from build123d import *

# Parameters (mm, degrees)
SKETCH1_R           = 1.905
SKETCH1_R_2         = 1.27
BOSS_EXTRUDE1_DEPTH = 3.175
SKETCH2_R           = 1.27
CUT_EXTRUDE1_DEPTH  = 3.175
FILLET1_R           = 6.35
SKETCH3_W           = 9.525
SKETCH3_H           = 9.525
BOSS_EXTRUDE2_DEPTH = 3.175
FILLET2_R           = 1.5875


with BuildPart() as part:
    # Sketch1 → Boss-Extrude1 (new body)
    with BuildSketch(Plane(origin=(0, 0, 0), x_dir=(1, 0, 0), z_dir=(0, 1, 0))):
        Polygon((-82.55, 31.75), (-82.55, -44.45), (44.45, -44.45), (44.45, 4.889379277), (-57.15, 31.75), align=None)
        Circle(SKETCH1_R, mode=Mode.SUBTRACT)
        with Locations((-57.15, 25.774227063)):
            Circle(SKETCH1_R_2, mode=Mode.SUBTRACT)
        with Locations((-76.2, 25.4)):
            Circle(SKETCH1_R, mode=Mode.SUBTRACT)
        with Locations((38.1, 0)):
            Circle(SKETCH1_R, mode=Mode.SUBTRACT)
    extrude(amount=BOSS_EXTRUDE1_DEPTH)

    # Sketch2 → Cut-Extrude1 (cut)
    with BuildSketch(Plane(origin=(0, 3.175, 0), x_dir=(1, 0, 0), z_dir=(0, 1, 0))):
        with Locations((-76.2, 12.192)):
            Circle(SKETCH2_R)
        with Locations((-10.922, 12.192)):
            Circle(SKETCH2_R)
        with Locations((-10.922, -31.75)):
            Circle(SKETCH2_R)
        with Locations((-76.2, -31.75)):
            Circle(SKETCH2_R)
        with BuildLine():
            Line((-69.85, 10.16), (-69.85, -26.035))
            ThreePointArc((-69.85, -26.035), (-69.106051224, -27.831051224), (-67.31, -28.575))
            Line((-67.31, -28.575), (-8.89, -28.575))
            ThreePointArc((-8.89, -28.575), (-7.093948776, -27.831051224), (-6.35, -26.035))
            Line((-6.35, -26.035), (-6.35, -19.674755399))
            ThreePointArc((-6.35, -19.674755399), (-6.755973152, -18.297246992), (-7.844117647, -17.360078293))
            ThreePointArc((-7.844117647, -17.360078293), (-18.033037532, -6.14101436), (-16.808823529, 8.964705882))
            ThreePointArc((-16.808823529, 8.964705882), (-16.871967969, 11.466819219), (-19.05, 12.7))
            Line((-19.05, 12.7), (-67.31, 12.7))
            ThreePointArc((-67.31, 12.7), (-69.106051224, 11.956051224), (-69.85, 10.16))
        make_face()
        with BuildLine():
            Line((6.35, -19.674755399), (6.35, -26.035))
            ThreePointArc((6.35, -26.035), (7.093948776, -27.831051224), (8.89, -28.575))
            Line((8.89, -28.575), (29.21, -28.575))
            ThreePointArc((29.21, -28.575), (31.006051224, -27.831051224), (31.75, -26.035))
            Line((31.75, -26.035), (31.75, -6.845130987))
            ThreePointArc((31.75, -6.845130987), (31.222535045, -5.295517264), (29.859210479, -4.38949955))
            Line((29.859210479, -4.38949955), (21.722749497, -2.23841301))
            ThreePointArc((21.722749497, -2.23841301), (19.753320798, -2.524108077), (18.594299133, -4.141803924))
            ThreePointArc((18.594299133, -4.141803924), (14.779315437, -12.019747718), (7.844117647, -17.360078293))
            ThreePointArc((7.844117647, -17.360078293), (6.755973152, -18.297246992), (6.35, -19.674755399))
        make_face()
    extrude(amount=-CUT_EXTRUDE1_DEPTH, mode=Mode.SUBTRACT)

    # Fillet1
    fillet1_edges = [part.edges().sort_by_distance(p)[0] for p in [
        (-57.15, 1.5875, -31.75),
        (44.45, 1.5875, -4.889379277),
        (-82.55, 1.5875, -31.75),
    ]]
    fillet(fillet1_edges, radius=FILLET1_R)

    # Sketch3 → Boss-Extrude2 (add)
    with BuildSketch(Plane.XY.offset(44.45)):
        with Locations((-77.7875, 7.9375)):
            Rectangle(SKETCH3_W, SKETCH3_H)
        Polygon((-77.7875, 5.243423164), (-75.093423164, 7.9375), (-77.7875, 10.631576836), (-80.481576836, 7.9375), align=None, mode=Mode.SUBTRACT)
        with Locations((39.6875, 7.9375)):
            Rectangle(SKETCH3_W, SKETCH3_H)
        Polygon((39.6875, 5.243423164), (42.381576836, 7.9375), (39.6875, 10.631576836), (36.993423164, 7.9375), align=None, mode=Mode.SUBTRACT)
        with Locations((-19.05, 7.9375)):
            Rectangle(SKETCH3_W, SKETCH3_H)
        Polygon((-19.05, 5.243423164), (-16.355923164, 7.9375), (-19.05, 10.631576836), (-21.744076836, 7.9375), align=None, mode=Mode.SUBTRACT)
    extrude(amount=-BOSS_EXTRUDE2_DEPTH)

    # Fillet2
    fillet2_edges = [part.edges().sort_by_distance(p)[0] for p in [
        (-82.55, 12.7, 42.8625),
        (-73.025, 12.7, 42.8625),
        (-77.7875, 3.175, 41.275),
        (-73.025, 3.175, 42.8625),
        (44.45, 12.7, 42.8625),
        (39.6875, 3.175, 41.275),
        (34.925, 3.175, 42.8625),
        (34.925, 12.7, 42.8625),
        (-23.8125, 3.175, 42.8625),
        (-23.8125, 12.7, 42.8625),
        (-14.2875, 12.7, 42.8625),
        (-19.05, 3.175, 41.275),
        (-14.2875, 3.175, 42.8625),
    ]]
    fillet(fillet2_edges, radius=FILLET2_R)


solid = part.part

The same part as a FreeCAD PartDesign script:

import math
import FreeCAD as App
import Part
import Sketcher

V = App.Vector
Q = App.Units.Quantity


def edges_at(feature, points):
    """Names of the edges that pass closest to the given points."""
    edges = feature.Shape.Edges
    near = lambda p: min(range(len(edges)), key=lambda i: edges[i].distToShape(Part.Vertex(*p))[0])
    return sorted({f"Edge{near(p) + 1}" for p in points})


def add_polygon(sketch, points):
    """Adds a closed chain of lines whose ends are joined by coincident constraints."""
    first, n = sketch.GeometryCount, len(points)
    for a, b in zip(points, points[1:] + points[:1]):
        sketch.addGeometry(Part.LineSegment(App.Vector(*a, 0), App.Vector(*b, 0)), False)
    for i in range(n):
        sketch.addConstraint(Sketcher.Constraint("Coincident", first + i, 2, first + (i + 1) % n, 1))

doc = App.newDocument("Part")
params = doc.addObject("Spreadsheet::Sheet", "Params")
for row, (alias, value) in enumerate([
    ("sketch1_diameter", "0.1 in"),
    ("sketch1_diameter2", "0.15 in"),
    ("sketch1_width", "5 in"),
    ("sketch1_width2", "1 in"),
    ("sketch1_height", "3 in"),
    ("pad1_length", "0.125 in"),
    ("sketch2_diameter", "0.1 in"),
    ("sketch2_radius", "0.1 in"),
    ("sketch2_radius2", "0.75 in"),
    ("sketch2_width", "2.3 in"),
    ("sketch2_width2", "1.9 in"),
    ("pocket1_length", "0.125 in"),
    ("fillet_radius", "0.25 in"),
    ("sketch3_length", "0.15 in"),
    ("sketch3_width", "0.375 in"),
    ("pad2_length", "0.125 in"),
    ("fillet2_radius", "0.0625 in"),
], start=1):
    params.set(f"A{row}", alias)
    params.set(f"B{row}", "=" + value)
    params.setAlias(f"B{row}", alias)

body = doc.addObject("PartDesign::Body", "Body")

# Sketch on XZ plane
sketch1 = body.newObject("Sketcher::SketchObject", "Sketch")
sketch1.AttachmentSupport = (doc.getObject("XZ_Plane"), [""])
sketch1.MapMode = "FlatFace"
add_polygon(sketch1, [(-82.5, -31.8), (-82.5, 44.5), (44.5, 44.5), (44.5, -4.9), (-57.1, -31.8)])  # lines 0-4
sketch1.addGeometry(Part.Circle(V(0, 0, 0), V(0, 0, 1), 1.9), False)  # 5
sketch1.addGeometry(Part.Circle(V(38.1, 0, 0), V(0, 0, 1), 1.9), False)  # 6
sketch1.addGeometry(Part.Circle(V(-76.2, -25.4, 0), V(0, 0, 1), 1.9), False)  # 7
sketch1.addGeometry(Part.Circle(V(-57.1, -25.8, 0), V(0, 0, 1), 1.3), False)  # 8
sketch1.addConstraint([
    Sketcher.Constraint("Vertical", 0),
    Sketcher.Constraint("Horizontal", 1),
    Sketcher.Constraint("Vertical", 2),
    Sketcher.Constraint("Horizontal", 4),
    Sketcher.Constraint("Coincident", 5, 3, -1, 1),
    Sketcher.Constraint("Equal", 5, 6),
    Sketcher.Constraint("Equal", 6, 7),
    Sketcher.Constraint("PointOnObject", 6, 3, -1),
    Sketcher.Constraint("Vertical", 8, 3, 3, 2),
    Sketcher.Constraint("Diameter", 8, Q("0.1 in")),
    Sketcher.Constraint("Diameter", 5, Q("0.15 in")),
    Sketcher.Constraint("DistanceX", 1, 1, 1, 2, Q("5 in")),
    Sketcher.Constraint("DistanceX", 4, 2, 4, 1, Q("1 in")),
    Sketcher.Constraint("DistanceY", 0, 1, 0, 2, Q("3 in")),
    Sketcher.Constraint("DistanceX", 7, 3, -1, 1, Q("3 in")),
    Sketcher.Constraint("DistanceY", 7, 3, -1, 1, Q("1 in")),
    Sketcher.Constraint("DistanceX", -1, 1, 6, 3, Q("1.5 in")),
    Sketcher.Constraint("DistanceX", 8, 3, -1, 1, Q("2.25 in")),
    Sketcher.Constraint("DistanceY", -1, 1, 0, 2, Q("1.75 in")),
    Sketcher.Constraint("DistanceY", 2, 2, 2, 1, Q("49.339379 mm")),
    Sketcher.Constraint("DistanceY", 8, 3, -1, 1, Q("25.774227 mm")),
])
sketch1.setExpression("Constraints[14]", "Params.sketch1_diameter")
sketch1.setExpression("Constraints[15]", "Params.sketch1_diameter2")
sketch1.setExpression("Constraints[16]", "Params.sketch1_width")
sketch1.setExpression("Constraints[17]", "Params.sketch1_width2")
sketch1.setExpression("Constraints[18]", "Params.sketch1_height")
pad1 = body.newObject("PartDesign::Pad", "Pad")
pad1.Profile = sketch1
pad1.setExpression("Length", "Params.pad1_length")
pad1.Reversed = True

# Sketch on XZ plane
sketch2 = body.newObject("Sketcher::SketchObject", "Sketch001")
sketch2.AttachmentSupport = (doc.getObject("XZ_Plane"), [""])
sketch2.MapMode = "FlatFace"
sketch2.AttachmentOffset = App.Placement(V(0, 0, -0.125 * 25.4), App.Rotation())
sketch2.addGeometry([
    Part.Circle(V(-76.2, -12.2, 0), V(0, 0, 1), 1.3),  # 0
    Part.Circle(V(-10.9, -12.2, 0), V(0, 0, 1), 1.3),  # 1
    Part.Circle(V(-10.9, 31.8, 0), V(0, 0, 1), 1.3),  # 2
    Part.Circle(V(-76.2, 31.8, 0), V(0, 0, 1), 1.3),  # 3
    Part.LineSegment(V(-69.8, -10.2, 0), V(-69.8, 26, 0)),  # 4
    Part.ArcOfCircle(Part.Circle(V(-67.3, 26, 0), V(0, 0, 1), 2.5), math.radians(90), math.radians(180)),  # 5
    Part.LineSegment(V(-67.3, 28.6, 0), V(-8.9, 28.6, 0)),  # 6
    Part.ArcOfCircle(Part.Circle(V(-8.9, 26, 0), V(0, 0, 1), 2.5), math.radians(0), math.radians(90)),  # 7
    Part.LineSegment(V(-6.3, 26, 0), V(-6.3, 19.7, 0)),  # 8
    Part.ArcOfCircle(Part.Circle(V(-8.9, 19.7, 0), V(0, 0, 1), 2.5), math.radians(-66), math.radians(0)),  # 9
    Part.ArcOfCircle(Part.Circle(V(0, 0, 0), V(0, 0, 1), 19), math.radians(114), math.radians(208)),  # 10
    Part.ArcOfCircle(Part.Circle(V(-19.1, -10.2, 0), V(0, 0, 1), 2.5), math.radians(-90), math.radians(28)),  # 11
    Part.LineSegment(V(-19.1, -12.7, 0), V(-67.3, -12.7, 0)),  # 12
    Part.ArcOfCircle(Part.Circle(V(-67.3, -10.2, 0), V(0, 0, 1), 2.5), math.radians(-180), math.radians(-90)),  # 13
    Part.LineSegment(V(6.3, 19.7, 0), V(6.3, 26, 0)),  # 14
    Part.ArcOfCircle(Part.Circle(V(8.9, 26, 0), V(0, 0, 1), 2.5), math.radians(90), math.radians(180)),  # 15
    Part.LineSegment(V(8.9, 28.6, 0), V(29.2, 28.6, 0)),  # 16
    Part.ArcOfCircle(Part.Circle(V(29.2, 26, 0), V(0, 0, 1), 2.5), math.radians(0), math.radians(90)),  # 17
    Part.LineSegment(V(31.8, 26, 0), V(31.8, 6.8, 0)),  # 18
    Part.ArcOfCircle(Part.Circle(V(29.2, 6.8, 0), V(0, 0, 1), 2.5), math.radians(-75), math.radians(0)),  # 19
    Part.LineSegment(V(29.9, 4.4, 0), V(21.7, 2.2, 0)),  # 20
    Part.ArcOfCircle(Part.Circle(V(21.1, 4.7, 0), V(0, 0, 1), 2.5), math.radians(-167), math.radians(-75)),  # 21
    Part.ArcOfCircle(Part.Circle(V(0, 0, 0), V(0, 0, 1), 19.1), math.radians(13), math.radians(66)),  # 22
    Part.ArcOfCircle(Part.Circle(V(8.9, 19.7, 0), V(0, 0, 1), 2.5), math.radians(-180), math.radians(-114)),  # 23
], False)
sketch2.addConstraint([
    Sketcher.Constraint("Tangent", 4, 2, 5, 2),
    Sketcher.Constraint("Tangent", 5, 1, 6, 1),
    Sketcher.Constraint("Tangent", 6, 2, 7, 2),
    Sketcher.Constraint("Tangent", 7, 1, 8, 1),
    Sketcher.Constraint("Tangent", 8, 2, 9, 2),
    Sketcher.Constraint("Tangent", 9, 1, 10, 1),
    Sketcher.Constraint("Tangent", 10, 2, 11, 2),
    Sketcher.Constraint("Tangent", 11, 1, 12, 1),
    Sketcher.Constraint("Tangent", 12, 2, 13, 2),
    Sketcher.Constraint("Tangent", 13, 1, 4, 1),
    Sketcher.Constraint("Tangent", 14, 2, 15, 2),
    Sketcher.Constraint("Tangent", 15, 1, 16, 1),
    Sketcher.Constraint("Tangent", 16, 2, 17, 2),
    Sketcher.Constraint("Tangent", 17, 1, 18, 1),
    Sketcher.Constraint("Tangent", 18, 2, 19, 2),
    Sketcher.Constraint("Tangent", 19, 1, 20, 1),
    Sketcher.Constraint("Tangent", 20, 2, 21, 2),
    Sketcher.Constraint("Tangent", 21, 1, 22, 1),
    Sketcher.Constraint("Tangent", 22, 2, 23, 2),
    Sketcher.Constraint("Tangent", 23, 1, 14, 1),
    Sketcher.Constraint("Vertical", 4),
    Sketcher.Constraint("Horizontal", 6),
    Sketcher.Constraint("Vertical", 8),
    Sketcher.Constraint("Horizontal", 12),
    Sketcher.Constraint("Vertical", 14),
    Sketcher.Constraint("Horizontal", 16),
    Sketcher.Constraint("Vertical", 18),
    Sketcher.Constraint("Coincident", 10, 3, -1, 1),
    Sketcher.Constraint("Coincident", 22, 3, -1, 1),
    Sketcher.Constraint("Equal", 0, 1),
    Sketcher.Constraint("Equal", 1, 2),
    Sketcher.Constraint("Equal", 2, 3),
    Sketcher.Constraint("Equal", 5, 7),
    Sketcher.Constraint("Equal", 7, 9),
    Sketcher.Constraint("Equal", 9, 11),
    Sketcher.Constraint("Equal", 11, 13),
    Sketcher.Constraint("Equal", 13, 15),
    Sketcher.Constraint("Equal", 15, 17),
    Sketcher.Constraint("Equal", 17, 19),
    Sketcher.Constraint("Equal", 19, 21),
    Sketcher.Constraint("Equal", 10, 22),
    Sketcher.Constraint("Equal", 21, 23),
    Sketcher.Constraint("Symmetric", 7, 3, 15, 3, -2),
    Sketcher.Constraint("Horizontal", 0, 3, 1, 3),
    Sketcher.Constraint("Horizontal", 2, 3, 3, 3),
    Sketcher.Constraint("Vertical", 1, 3, 2, 3),
    Sketcher.Constraint("Vertical", 0, 3, 3, 3),
    Sketcher.Constraint("Diameter", 0, Q("0.1 in")),
    Sketcher.Constraint("Radius", 5, Q("0.1 in")),
    Sketcher.Constraint("Radius", 10, Q("0.75 in")),
    Sketcher.Constraint("DistanceX", 6, 1, 6, 2, Q("2.3 in")),
    Sketcher.Constraint("DistanceX", 12, 2, 12, 1, Q("1.9 in")),
    Sketcher.Constraint("DistanceX", 16, 1, 16, 2, Q("0.8 in")),
    Sketcher.Constraint("DistanceX", 0, 3, -1, 1, Q("3 in")),
    Sketcher.Constraint("DistanceY", 11, 3, -1, 1, Q("0.4 in")),
    Sketcher.Constraint("DistanceY", 4, 1, 4, 2, Q("1.425 in")),
    Sketcher.Constraint("DistanceY", 0, 3, -1, 1, Q("0.48 in")),
    Sketcher.Constraint("DistanceX", 1, 3, -1, 1, Q("0.43 in")),
    Sketcher.Constraint("DistanceY", -1, 1, 2, 3, Q("1.25 in")),
    Sketcher.Constraint("DistanceY", 18, 2, 18, 1, Q("19.189869 mm")),
    Sketcher.Constraint("DistanceY", -1, 1, 19, 1, Q("4.3895 mm")),
])
sketch2.setExpression("Constraints[47]", "Params.sketch2_diameter")
sketch2.setExpression("Constraints[48]", "Params.sketch2_radius")
sketch2.setExpression("Constraints[49]", "Params.sketch2_radius2")
sketch2.setExpression("Constraints[50]", "Params.sketch2_width")
sketch2.setExpression("Constraints[51]", "Params.sketch2_width2")
pocket1 = body.newObject("PartDesign::Pocket", "Pocket")
pocket1.Profile = sketch2
pocket1.setExpression("Length", "Params.pocket1_length")
pocket1.Reversed = True
doc.recompute()

fillet = body.newObject("PartDesign::Fillet", "Fillet")
fillet.Base = (pocket1, edges_at(pocket1, [(-57.15, 1.587, -31.75), (44.45, 1.587, -4.889), (-82.55, 1.587, -31.75)]))
fillet.setExpression("Radius", "Params.fillet_radius")

# Sketch on XY plane
sketch3 = body.newObject("Sketcher::SketchObject", "Sketch002")
sketch3.AttachmentSupport = (doc.getObject("XY_Plane"), [""])
sketch3.MapMode = "FlatFace"
sketch3.AttachmentOffset = App.Placement(V(0, 0, 1.75 * 25.4), App.Rotation())
add_polygon(sketch3, [(-82.5, 12.7), (-82.5, 3.2), (-73, 3.2), (-73, 12.7)])  # lines 0-3
add_polygon(sketch3, [(-75.1, 7.9), (-77.8, 5.2), (-80.5, 7.9), (-77.8, 10.6)])  # lines 4-7
add_polygon(sketch3, [(34.9, 12.7), (34.9, 3.2), (44.5, 3.2), (44.5, 12.7)])  # lines 8-11
add_polygon(sketch3, [(42.4, 7.9), (39.7, 5.2), (37, 7.9), (39.7, 10.6)])  # lines 12-15
add_polygon(sketch3, [(-23.8, 12.7), (-23.8, 3.2), (-14.3, 3.2), (-14.3, 12.7)])  # lines 16-19
add_polygon(sketch3, [(-16.4, 7.9), (-19.1, 5.2), (-21.7, 7.9), (-19.1, 10.6)])  # lines 20-23
sketch3.addConstraint([
    Sketcher.Constraint("Vertical", 0),
    Sketcher.Constraint("Horizontal", 1),
    Sketcher.Constraint("Vertical", 2),
    Sketcher.Constraint("Horizontal", 3),
    Sketcher.Constraint("Vertical", 8),
    Sketcher.Constraint("Horizontal", 9),
    Sketcher.Constraint("Vertical", 10),
    Sketcher.Constraint("Horizontal", 11),
    Sketcher.Constraint("Vertical", 16),
    Sketcher.Constraint("Horizontal", 17),
    Sketcher.Constraint("Vertical", 18),
    Sketcher.Constraint("Horizontal", 19),
    Sketcher.Constraint("Perpendicular", 4, 5),
    Sketcher.Constraint("Perpendicular", 5, 6),
    Sketcher.Constraint("Perpendicular", 6, 7),
    Sketcher.Constraint("Perpendicular", 7, 12),
    Sketcher.Constraint("Perpendicular", 12, 13),
    Sketcher.Constraint("Perpendicular", 13, 14),
    Sketcher.Constraint("Perpendicular", 14, 15),
    Sketcher.Constraint("Perpendicular", 15, 20),
    Sketcher.Constraint("Perpendicular", 20, 21),
    Sketcher.Constraint("Perpendicular", 21, 22),
    Sketcher.Constraint("Perpendicular", 22, 23),
    Sketcher.Constraint("Horizontal", 5, 2, 7, 2),
    Sketcher.Constraint("Horizontal", 1, 2, 8, 2),
    Sketcher.Constraint("Horizontal", 3, 2, 10, 2),
    Sketcher.Constraint("Horizontal", 4, 2, 12, 2),
    Sketcher.Constraint("Horizontal", 7, 2, 13, 2),
    Sketcher.Constraint("Horizontal", 6, 2, 14, 2),
    Sketcher.Constraint("Horizontal", 9, 2, 16, 2),
    Sketcher.Constraint("Horizontal", 11, 2, 18, 2),
    Sketcher.Constraint("Horizontal", 12, 2, 20, 2),
    Sketcher.Constraint("Horizontal", 15, 2, 21, 2),
    Sketcher.Constraint("Horizontal", 14, 2, 22, 2),
    Sketcher.Constraint("Vertical", 4, 2, 6, 2),
    Sketcher.Constraint("Equal", 3, 9),
    Sketcher.Constraint("Equal", 11, 17),
    Sketcher.Constraint("Equal", 19, 0),
    Sketcher.Constraint("DistanceY", -1, 1, 2, 2, Q("0.5 in")),
    Sketcher.Constraint("Distance", 4, Q("0.15 in")),
    Sketcher.Constraint("DistanceX", 1, 1, 1, 2, Q("0.375 in")),
    Sketcher.Constraint("DistanceX", 0, 2, -1, 1, Q("3.25 in")),
    Sketcher.Constraint("DistanceX", -1, 1, 9, 2, Q("1.75 in")),
    Sketcher.Constraint("DistanceX", 20, 2, -1, 1, Q("0.75 in")),
    Sketcher.Constraint("DistanceX", 4, 2, -1, 1, Q("3.0625 in")),
    Sketcher.Constraint("DistanceY", -1, 1, 5, 2, Q("0.3125 in")),
    Sketcher.Constraint("DistanceX", -1, 1, 12, 2, Q("1.5625 in")),
    Sketcher.Constraint("DistanceX", 16, 2, -1, 1, Q("0.9375 in")),
])
sketch3.setExpression("Constraints[63]", "Params.sketch3_length")
sketch3.setExpression("Constraints[64]", "Params.sketch3_width")
pad2 = body.newObject("PartDesign::Pad", "Pad001")
pad2.Profile = sketch3
pad2.setExpression("Length", "Params.pad2_length")
pad2.Reversed = True
doc.recompute()

fillet2 = body.newObject("PartDesign::Fillet", "Fillet001")
fillet2.Base = (pad2, edges_at(pad2, [
    (-82.55, 12.7, 42.862),
    (-73.025, 12.7, 42.862),
    (-77.787, 3.175, 41.275),
    (-73.025, 3.175, 42.862),
    (44.45, 12.7, 42.862),
    (39.688, 3.175, 41.275),
    (34.925, 3.175, 42.862),
    (34.925, 12.7, 42.862),
    (-23.812, 3.175, 42.862),
    (-23.812, 12.7, 42.862),
    (-14.287, 12.7, 42.862),
    (-19.05, 3.175, 41.275),
    (-14.287, 3.175, 42.862),
]))
fillet2.setExpression("Radius", "Params.fillet2_radius")

doc.recompute()
